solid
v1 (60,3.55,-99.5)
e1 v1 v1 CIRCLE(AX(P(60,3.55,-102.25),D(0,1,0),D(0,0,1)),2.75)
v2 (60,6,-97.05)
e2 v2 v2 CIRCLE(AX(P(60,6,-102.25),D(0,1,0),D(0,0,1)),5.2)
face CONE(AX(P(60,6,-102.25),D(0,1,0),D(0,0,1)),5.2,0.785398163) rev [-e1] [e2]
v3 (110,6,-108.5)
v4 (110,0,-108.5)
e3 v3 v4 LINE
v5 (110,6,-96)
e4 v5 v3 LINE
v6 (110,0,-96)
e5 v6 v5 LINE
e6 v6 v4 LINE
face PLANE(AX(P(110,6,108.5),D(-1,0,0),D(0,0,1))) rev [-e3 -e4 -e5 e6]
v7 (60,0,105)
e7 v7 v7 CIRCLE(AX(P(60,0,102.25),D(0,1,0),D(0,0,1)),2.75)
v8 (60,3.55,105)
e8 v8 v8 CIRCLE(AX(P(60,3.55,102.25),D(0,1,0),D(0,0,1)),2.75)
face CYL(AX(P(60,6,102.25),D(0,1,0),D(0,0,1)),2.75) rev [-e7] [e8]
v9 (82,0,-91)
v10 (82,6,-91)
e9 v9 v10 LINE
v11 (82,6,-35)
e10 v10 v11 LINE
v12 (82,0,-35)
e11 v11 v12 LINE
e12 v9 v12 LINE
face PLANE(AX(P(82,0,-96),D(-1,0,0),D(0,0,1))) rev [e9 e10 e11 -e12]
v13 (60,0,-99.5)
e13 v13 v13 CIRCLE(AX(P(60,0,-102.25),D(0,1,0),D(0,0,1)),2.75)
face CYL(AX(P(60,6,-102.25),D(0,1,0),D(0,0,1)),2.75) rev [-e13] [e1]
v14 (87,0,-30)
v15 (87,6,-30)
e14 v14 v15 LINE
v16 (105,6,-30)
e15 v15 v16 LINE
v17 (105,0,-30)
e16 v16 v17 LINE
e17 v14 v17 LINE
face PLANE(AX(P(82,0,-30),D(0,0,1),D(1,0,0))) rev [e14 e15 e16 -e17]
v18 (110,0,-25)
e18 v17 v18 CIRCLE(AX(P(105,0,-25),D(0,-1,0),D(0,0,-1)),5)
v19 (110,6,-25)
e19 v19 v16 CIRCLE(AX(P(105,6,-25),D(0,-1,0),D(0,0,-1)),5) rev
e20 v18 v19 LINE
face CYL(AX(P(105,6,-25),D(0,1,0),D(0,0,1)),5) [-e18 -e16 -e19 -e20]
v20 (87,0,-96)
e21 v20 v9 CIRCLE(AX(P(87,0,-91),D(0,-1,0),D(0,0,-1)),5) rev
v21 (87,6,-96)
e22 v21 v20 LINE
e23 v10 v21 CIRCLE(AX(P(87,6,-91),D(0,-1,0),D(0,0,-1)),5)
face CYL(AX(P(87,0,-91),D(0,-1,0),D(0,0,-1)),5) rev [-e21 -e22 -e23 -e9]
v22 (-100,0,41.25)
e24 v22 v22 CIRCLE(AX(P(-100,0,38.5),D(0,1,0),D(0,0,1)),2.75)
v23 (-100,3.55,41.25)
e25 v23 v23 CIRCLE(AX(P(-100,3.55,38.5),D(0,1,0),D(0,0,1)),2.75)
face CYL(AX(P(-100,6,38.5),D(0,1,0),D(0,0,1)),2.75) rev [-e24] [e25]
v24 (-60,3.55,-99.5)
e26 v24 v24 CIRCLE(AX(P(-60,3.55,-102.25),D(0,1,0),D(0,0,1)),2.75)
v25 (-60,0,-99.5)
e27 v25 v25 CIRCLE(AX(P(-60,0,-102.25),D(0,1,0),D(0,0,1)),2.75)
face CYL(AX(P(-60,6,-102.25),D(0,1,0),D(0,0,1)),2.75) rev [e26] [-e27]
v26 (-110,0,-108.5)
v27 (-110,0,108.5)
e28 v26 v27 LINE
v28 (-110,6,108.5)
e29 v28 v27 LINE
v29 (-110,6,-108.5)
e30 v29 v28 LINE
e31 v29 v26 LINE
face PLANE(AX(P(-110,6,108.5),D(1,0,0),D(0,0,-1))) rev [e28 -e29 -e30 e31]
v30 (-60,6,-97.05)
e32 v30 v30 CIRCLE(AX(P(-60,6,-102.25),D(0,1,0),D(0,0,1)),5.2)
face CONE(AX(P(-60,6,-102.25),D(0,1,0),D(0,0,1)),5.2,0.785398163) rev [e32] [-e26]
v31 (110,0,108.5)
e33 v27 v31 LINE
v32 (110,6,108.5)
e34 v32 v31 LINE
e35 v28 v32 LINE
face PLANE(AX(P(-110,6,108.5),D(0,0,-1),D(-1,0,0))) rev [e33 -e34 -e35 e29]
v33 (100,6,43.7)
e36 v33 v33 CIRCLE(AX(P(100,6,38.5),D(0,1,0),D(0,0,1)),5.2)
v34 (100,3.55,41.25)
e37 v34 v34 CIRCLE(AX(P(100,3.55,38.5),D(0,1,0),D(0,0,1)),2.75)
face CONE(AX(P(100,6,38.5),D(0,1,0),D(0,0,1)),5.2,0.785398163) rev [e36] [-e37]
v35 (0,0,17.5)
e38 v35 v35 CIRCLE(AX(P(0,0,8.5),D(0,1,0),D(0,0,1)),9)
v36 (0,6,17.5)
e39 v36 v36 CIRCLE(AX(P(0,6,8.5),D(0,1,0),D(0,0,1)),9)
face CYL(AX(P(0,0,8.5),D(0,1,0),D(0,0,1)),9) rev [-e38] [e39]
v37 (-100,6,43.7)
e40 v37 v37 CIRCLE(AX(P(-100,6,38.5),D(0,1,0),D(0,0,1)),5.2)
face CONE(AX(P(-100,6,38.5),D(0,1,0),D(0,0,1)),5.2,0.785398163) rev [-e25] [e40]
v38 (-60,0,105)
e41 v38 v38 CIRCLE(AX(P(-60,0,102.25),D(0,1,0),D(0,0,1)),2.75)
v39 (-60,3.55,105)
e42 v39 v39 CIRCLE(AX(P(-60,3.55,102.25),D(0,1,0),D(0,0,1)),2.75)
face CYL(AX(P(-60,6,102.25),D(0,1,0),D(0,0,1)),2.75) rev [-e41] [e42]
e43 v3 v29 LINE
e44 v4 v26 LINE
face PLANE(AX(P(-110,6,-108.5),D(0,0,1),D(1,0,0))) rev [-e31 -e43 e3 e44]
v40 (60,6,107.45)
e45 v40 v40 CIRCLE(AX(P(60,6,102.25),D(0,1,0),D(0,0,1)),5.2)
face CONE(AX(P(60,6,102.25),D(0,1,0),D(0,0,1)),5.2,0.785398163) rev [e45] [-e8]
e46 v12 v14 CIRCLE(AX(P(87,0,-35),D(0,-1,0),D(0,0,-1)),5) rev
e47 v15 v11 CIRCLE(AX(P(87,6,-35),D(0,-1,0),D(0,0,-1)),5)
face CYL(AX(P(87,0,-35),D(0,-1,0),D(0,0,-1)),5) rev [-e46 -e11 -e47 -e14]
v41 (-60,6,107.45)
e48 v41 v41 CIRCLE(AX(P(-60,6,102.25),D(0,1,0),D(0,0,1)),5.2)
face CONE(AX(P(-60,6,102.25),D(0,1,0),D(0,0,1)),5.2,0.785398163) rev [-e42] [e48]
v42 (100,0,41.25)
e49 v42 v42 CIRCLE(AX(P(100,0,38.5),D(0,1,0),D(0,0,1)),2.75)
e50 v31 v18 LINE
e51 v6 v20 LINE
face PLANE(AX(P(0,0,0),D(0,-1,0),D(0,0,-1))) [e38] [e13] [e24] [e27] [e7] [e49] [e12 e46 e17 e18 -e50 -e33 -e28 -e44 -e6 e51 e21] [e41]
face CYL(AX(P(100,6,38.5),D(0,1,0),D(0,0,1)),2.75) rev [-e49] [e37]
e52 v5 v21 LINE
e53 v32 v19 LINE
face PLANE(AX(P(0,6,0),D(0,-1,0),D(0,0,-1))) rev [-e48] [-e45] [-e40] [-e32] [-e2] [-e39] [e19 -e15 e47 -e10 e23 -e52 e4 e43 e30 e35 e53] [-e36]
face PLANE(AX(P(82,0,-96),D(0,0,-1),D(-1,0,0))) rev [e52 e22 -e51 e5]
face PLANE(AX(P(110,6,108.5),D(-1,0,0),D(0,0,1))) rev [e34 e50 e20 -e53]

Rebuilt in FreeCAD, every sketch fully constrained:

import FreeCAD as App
import Part
import Sketcher
Q = App.Units.Quantity


def edges_at(feature, points):
    """Names of the edges that pass closest to the given points."""
    edges = feature.Shape.Edges
    near = lambda p: min(range(len(edges)), key=lambda i: edges[i].distToShape(Part.Vertex(*p))[0])
    return sorted({f"Edge{near(p) + 1}" for p in points})


def add_polygon(sketch, points):
    """Adds a closed chain of lines whose ends are joined by coincident constraints."""
    first, n = sketch.GeometryCount, len(points)
    for a, b in zip(points, points[1:] + points[:1]):
        sketch.addGeometry(Part.LineSegment(App.Vector(*a, 0), App.Vector(*b, 0)), False)
    for i in range(n):
        sketch.addConstraint(Sketcher.Constraint("Coincident", first + i, 2, first + (i + 1) % n, 1))

doc = App.newDocument("Part")
body = doc.addObject("PartDesign::Body", "Body")

# Sketch on XZ plane
sketch1 = body.newObject("Sketcher::SketchObject", "Sketch")
sketch1.AttachmentSupport = (doc.getObject("XZ_Plane"), [""])
sketch1.MapMode = "FlatFace"
add_polygon(sketch1, [(-110, -108.5), (-110, 108.5), (110, 108.5), (110, -108.5)])  # lines 0-3
sketch1.addConstraint([
    Sketcher.Constraint("Vertical", 0),
    Sketcher.Constraint("Horizontal", 1),
    Sketcher.Constraint("Vertical", 2),
    Sketcher.Constraint("Horizontal", 3),
    Sketcher.Constraint("Symmetric", 0, 2, 2, 2, -1, 1),
    Sketcher.Constraint("DistanceX", 1, 1, 1, 2, Q("220 mm")),
    Sketcher.Constraint("DistanceY", 0, 1, 0, 2, Q("217 mm")),
])
pad1 = body.newObject("PartDesign::Pad", "Pad")
pad1.Profile = sketch1
pad1.Length = 6
pad1.Reversed = True

# Sketch on XZ plane
sketch2 = body.newObject("Sketcher::SketchObject", "Sketch001")
sketch2.AttachmentSupport = (doc.getObject("XZ_Plane"), [""])
sketch2.MapMode = "FlatFace"
sketch2.AttachmentOffset = App.Placement(App.Vector(0, 0, -6), App.Rotation())
sketch2.addGeometry(Part.Circle(App.Vector(0, 8.5, 0), App.Vector(0, 0, 1), 9), False)  # 0
add_polygon(sketch2, [(82, -96), (82, -30), (110, -30), (110, -96)])  # lines 1-4
sketch2.addConstraint([
    Sketcher.Constraint("Vertical", 1),
    Sketcher.Constraint("Horizontal", 2),
    Sketcher.Constraint("Vertical", 3),
    Sketcher.Constraint("Horizontal", 4),
    Sketcher.Constraint("PointOnObject", 0, 3, -2),
    Sketcher.Constraint("Diameter", 0, Q("18 mm")),
    Sketcher.Constraint("DistanceX", 2, 1, 2, 2, Q("28 mm")),
    Sketcher.Constraint("DistanceY", 1, 1, 1, 2, Q("66 mm")),
    Sketcher.Constraint("DistanceX", -1, 1, 1, 2, Q("82 mm")),
    Sketcher.Constraint("DistanceY", 1, 2, -1, 1, Q("30 mm")),
    Sketcher.Constraint("DistanceY", -1, 1, 0, 3, Q("8.5 mm")),
])
pocket1 = body.newObject("PartDesign::Pocket", "Pocket")
pocket1.Profile = sketch2
pocket1.Type = "ThroughAll"
pocket1.Reversed = True
doc.recompute()

fillet = body.newObject("PartDesign::Fillet", "Fillet")
fillet.Base = (pocket1, edges_at(pocket1, [(82, 3, -30), (82, 3, -96), (110, 3, -30)]))
fillet.Radius = 5

# Sketch on XZ plane
sketch3 = body.newObject("Sketcher::SketchObject", "Sketch002")
sketch3.AttachmentSupport = (doc.getObject("XZ_Plane"), [""])
sketch3.MapMode = "FlatFace"
sketch3.AttachmentOffset = App.Placement(App.Vector(0, 0, -6), App.Rotation())
sketch3.addGeometry([
    Part.Circle(App.Vector(-100, 38.5, 0), App.Vector(0, 0, 1), 2.75),  # 0
    Part.Circle(App.Vector(-60, 102.25, 0), App.Vector(0, 0, 1), 2.75),  # 1
    Part.Circle(App.Vector(60, 102.25, 0), App.Vector(0, 0, 1), 2.75),  # 2
    Part.Circle(App.Vector(100, 38.5, 0), App.Vector(0, 0, 1), 2.75),  # 3
    Part.Circle(App.Vector(-60, -102.25, 0), App.Vector(0, 0, 1), 2.75),  # 4
    Part.Circle(App.Vector(60, -102.25, 0), App.Vector(0, 0, 1), 2.75),  # 5
], False)
sketch3.addConstraint([
    Sketcher.Constraint("Equal", 0, 1),
    Sketcher.Constraint("Equal", 1, 2),
    Sketcher.Constraint("Equal", 2, 3),
    Sketcher.Constraint("Equal", 3, 4),
    Sketcher.Constraint("Equal", 4, 5),
    Sketcher.Constraint("Symmetric", 2, 3, 4, 3, -1, 1),
    Sketcher.Constraint("Symmetric", 1, 3, 5, 3, -1, 1),
    Sketcher.Constraint("Symmetric", 1, 3, 2, 3, -2),
    Sketcher.Constraint("Symmetric", 0, 3, 3, 3, -2),
    Sketcher.Constraint("Diameter", 0, Q("5.5 mm")),
    Sketcher.Constraint("DistanceX", 0, 3, -1, 1, Q("100 mm")),
    Sketcher.Constraint("DistanceX", 1, 3, -1, 1, Q("60 mm")),
    Sketcher.Constraint("DistanceY", -1, 1, 0, 3, Q("38.5 mm")),
    Sketcher.Constraint("DistanceY", 4, 3, 1, 3, Q("204.5 mm")),
])
doc.recompute()
hole = body.newObject("PartDesign::Hole", "Hole")
hole.Profile = sketch3
hole.ThreadType = "None"
hole.Diameter = 5.5
hole.DepthType = "ThroughAll"
hole.HoleCutType = "Countersink"
hole.HoleCutDiameter = 10.4
hole.HoleCutCountersinkAngle = 90
hole.Reversed = True

doc.recompute()
